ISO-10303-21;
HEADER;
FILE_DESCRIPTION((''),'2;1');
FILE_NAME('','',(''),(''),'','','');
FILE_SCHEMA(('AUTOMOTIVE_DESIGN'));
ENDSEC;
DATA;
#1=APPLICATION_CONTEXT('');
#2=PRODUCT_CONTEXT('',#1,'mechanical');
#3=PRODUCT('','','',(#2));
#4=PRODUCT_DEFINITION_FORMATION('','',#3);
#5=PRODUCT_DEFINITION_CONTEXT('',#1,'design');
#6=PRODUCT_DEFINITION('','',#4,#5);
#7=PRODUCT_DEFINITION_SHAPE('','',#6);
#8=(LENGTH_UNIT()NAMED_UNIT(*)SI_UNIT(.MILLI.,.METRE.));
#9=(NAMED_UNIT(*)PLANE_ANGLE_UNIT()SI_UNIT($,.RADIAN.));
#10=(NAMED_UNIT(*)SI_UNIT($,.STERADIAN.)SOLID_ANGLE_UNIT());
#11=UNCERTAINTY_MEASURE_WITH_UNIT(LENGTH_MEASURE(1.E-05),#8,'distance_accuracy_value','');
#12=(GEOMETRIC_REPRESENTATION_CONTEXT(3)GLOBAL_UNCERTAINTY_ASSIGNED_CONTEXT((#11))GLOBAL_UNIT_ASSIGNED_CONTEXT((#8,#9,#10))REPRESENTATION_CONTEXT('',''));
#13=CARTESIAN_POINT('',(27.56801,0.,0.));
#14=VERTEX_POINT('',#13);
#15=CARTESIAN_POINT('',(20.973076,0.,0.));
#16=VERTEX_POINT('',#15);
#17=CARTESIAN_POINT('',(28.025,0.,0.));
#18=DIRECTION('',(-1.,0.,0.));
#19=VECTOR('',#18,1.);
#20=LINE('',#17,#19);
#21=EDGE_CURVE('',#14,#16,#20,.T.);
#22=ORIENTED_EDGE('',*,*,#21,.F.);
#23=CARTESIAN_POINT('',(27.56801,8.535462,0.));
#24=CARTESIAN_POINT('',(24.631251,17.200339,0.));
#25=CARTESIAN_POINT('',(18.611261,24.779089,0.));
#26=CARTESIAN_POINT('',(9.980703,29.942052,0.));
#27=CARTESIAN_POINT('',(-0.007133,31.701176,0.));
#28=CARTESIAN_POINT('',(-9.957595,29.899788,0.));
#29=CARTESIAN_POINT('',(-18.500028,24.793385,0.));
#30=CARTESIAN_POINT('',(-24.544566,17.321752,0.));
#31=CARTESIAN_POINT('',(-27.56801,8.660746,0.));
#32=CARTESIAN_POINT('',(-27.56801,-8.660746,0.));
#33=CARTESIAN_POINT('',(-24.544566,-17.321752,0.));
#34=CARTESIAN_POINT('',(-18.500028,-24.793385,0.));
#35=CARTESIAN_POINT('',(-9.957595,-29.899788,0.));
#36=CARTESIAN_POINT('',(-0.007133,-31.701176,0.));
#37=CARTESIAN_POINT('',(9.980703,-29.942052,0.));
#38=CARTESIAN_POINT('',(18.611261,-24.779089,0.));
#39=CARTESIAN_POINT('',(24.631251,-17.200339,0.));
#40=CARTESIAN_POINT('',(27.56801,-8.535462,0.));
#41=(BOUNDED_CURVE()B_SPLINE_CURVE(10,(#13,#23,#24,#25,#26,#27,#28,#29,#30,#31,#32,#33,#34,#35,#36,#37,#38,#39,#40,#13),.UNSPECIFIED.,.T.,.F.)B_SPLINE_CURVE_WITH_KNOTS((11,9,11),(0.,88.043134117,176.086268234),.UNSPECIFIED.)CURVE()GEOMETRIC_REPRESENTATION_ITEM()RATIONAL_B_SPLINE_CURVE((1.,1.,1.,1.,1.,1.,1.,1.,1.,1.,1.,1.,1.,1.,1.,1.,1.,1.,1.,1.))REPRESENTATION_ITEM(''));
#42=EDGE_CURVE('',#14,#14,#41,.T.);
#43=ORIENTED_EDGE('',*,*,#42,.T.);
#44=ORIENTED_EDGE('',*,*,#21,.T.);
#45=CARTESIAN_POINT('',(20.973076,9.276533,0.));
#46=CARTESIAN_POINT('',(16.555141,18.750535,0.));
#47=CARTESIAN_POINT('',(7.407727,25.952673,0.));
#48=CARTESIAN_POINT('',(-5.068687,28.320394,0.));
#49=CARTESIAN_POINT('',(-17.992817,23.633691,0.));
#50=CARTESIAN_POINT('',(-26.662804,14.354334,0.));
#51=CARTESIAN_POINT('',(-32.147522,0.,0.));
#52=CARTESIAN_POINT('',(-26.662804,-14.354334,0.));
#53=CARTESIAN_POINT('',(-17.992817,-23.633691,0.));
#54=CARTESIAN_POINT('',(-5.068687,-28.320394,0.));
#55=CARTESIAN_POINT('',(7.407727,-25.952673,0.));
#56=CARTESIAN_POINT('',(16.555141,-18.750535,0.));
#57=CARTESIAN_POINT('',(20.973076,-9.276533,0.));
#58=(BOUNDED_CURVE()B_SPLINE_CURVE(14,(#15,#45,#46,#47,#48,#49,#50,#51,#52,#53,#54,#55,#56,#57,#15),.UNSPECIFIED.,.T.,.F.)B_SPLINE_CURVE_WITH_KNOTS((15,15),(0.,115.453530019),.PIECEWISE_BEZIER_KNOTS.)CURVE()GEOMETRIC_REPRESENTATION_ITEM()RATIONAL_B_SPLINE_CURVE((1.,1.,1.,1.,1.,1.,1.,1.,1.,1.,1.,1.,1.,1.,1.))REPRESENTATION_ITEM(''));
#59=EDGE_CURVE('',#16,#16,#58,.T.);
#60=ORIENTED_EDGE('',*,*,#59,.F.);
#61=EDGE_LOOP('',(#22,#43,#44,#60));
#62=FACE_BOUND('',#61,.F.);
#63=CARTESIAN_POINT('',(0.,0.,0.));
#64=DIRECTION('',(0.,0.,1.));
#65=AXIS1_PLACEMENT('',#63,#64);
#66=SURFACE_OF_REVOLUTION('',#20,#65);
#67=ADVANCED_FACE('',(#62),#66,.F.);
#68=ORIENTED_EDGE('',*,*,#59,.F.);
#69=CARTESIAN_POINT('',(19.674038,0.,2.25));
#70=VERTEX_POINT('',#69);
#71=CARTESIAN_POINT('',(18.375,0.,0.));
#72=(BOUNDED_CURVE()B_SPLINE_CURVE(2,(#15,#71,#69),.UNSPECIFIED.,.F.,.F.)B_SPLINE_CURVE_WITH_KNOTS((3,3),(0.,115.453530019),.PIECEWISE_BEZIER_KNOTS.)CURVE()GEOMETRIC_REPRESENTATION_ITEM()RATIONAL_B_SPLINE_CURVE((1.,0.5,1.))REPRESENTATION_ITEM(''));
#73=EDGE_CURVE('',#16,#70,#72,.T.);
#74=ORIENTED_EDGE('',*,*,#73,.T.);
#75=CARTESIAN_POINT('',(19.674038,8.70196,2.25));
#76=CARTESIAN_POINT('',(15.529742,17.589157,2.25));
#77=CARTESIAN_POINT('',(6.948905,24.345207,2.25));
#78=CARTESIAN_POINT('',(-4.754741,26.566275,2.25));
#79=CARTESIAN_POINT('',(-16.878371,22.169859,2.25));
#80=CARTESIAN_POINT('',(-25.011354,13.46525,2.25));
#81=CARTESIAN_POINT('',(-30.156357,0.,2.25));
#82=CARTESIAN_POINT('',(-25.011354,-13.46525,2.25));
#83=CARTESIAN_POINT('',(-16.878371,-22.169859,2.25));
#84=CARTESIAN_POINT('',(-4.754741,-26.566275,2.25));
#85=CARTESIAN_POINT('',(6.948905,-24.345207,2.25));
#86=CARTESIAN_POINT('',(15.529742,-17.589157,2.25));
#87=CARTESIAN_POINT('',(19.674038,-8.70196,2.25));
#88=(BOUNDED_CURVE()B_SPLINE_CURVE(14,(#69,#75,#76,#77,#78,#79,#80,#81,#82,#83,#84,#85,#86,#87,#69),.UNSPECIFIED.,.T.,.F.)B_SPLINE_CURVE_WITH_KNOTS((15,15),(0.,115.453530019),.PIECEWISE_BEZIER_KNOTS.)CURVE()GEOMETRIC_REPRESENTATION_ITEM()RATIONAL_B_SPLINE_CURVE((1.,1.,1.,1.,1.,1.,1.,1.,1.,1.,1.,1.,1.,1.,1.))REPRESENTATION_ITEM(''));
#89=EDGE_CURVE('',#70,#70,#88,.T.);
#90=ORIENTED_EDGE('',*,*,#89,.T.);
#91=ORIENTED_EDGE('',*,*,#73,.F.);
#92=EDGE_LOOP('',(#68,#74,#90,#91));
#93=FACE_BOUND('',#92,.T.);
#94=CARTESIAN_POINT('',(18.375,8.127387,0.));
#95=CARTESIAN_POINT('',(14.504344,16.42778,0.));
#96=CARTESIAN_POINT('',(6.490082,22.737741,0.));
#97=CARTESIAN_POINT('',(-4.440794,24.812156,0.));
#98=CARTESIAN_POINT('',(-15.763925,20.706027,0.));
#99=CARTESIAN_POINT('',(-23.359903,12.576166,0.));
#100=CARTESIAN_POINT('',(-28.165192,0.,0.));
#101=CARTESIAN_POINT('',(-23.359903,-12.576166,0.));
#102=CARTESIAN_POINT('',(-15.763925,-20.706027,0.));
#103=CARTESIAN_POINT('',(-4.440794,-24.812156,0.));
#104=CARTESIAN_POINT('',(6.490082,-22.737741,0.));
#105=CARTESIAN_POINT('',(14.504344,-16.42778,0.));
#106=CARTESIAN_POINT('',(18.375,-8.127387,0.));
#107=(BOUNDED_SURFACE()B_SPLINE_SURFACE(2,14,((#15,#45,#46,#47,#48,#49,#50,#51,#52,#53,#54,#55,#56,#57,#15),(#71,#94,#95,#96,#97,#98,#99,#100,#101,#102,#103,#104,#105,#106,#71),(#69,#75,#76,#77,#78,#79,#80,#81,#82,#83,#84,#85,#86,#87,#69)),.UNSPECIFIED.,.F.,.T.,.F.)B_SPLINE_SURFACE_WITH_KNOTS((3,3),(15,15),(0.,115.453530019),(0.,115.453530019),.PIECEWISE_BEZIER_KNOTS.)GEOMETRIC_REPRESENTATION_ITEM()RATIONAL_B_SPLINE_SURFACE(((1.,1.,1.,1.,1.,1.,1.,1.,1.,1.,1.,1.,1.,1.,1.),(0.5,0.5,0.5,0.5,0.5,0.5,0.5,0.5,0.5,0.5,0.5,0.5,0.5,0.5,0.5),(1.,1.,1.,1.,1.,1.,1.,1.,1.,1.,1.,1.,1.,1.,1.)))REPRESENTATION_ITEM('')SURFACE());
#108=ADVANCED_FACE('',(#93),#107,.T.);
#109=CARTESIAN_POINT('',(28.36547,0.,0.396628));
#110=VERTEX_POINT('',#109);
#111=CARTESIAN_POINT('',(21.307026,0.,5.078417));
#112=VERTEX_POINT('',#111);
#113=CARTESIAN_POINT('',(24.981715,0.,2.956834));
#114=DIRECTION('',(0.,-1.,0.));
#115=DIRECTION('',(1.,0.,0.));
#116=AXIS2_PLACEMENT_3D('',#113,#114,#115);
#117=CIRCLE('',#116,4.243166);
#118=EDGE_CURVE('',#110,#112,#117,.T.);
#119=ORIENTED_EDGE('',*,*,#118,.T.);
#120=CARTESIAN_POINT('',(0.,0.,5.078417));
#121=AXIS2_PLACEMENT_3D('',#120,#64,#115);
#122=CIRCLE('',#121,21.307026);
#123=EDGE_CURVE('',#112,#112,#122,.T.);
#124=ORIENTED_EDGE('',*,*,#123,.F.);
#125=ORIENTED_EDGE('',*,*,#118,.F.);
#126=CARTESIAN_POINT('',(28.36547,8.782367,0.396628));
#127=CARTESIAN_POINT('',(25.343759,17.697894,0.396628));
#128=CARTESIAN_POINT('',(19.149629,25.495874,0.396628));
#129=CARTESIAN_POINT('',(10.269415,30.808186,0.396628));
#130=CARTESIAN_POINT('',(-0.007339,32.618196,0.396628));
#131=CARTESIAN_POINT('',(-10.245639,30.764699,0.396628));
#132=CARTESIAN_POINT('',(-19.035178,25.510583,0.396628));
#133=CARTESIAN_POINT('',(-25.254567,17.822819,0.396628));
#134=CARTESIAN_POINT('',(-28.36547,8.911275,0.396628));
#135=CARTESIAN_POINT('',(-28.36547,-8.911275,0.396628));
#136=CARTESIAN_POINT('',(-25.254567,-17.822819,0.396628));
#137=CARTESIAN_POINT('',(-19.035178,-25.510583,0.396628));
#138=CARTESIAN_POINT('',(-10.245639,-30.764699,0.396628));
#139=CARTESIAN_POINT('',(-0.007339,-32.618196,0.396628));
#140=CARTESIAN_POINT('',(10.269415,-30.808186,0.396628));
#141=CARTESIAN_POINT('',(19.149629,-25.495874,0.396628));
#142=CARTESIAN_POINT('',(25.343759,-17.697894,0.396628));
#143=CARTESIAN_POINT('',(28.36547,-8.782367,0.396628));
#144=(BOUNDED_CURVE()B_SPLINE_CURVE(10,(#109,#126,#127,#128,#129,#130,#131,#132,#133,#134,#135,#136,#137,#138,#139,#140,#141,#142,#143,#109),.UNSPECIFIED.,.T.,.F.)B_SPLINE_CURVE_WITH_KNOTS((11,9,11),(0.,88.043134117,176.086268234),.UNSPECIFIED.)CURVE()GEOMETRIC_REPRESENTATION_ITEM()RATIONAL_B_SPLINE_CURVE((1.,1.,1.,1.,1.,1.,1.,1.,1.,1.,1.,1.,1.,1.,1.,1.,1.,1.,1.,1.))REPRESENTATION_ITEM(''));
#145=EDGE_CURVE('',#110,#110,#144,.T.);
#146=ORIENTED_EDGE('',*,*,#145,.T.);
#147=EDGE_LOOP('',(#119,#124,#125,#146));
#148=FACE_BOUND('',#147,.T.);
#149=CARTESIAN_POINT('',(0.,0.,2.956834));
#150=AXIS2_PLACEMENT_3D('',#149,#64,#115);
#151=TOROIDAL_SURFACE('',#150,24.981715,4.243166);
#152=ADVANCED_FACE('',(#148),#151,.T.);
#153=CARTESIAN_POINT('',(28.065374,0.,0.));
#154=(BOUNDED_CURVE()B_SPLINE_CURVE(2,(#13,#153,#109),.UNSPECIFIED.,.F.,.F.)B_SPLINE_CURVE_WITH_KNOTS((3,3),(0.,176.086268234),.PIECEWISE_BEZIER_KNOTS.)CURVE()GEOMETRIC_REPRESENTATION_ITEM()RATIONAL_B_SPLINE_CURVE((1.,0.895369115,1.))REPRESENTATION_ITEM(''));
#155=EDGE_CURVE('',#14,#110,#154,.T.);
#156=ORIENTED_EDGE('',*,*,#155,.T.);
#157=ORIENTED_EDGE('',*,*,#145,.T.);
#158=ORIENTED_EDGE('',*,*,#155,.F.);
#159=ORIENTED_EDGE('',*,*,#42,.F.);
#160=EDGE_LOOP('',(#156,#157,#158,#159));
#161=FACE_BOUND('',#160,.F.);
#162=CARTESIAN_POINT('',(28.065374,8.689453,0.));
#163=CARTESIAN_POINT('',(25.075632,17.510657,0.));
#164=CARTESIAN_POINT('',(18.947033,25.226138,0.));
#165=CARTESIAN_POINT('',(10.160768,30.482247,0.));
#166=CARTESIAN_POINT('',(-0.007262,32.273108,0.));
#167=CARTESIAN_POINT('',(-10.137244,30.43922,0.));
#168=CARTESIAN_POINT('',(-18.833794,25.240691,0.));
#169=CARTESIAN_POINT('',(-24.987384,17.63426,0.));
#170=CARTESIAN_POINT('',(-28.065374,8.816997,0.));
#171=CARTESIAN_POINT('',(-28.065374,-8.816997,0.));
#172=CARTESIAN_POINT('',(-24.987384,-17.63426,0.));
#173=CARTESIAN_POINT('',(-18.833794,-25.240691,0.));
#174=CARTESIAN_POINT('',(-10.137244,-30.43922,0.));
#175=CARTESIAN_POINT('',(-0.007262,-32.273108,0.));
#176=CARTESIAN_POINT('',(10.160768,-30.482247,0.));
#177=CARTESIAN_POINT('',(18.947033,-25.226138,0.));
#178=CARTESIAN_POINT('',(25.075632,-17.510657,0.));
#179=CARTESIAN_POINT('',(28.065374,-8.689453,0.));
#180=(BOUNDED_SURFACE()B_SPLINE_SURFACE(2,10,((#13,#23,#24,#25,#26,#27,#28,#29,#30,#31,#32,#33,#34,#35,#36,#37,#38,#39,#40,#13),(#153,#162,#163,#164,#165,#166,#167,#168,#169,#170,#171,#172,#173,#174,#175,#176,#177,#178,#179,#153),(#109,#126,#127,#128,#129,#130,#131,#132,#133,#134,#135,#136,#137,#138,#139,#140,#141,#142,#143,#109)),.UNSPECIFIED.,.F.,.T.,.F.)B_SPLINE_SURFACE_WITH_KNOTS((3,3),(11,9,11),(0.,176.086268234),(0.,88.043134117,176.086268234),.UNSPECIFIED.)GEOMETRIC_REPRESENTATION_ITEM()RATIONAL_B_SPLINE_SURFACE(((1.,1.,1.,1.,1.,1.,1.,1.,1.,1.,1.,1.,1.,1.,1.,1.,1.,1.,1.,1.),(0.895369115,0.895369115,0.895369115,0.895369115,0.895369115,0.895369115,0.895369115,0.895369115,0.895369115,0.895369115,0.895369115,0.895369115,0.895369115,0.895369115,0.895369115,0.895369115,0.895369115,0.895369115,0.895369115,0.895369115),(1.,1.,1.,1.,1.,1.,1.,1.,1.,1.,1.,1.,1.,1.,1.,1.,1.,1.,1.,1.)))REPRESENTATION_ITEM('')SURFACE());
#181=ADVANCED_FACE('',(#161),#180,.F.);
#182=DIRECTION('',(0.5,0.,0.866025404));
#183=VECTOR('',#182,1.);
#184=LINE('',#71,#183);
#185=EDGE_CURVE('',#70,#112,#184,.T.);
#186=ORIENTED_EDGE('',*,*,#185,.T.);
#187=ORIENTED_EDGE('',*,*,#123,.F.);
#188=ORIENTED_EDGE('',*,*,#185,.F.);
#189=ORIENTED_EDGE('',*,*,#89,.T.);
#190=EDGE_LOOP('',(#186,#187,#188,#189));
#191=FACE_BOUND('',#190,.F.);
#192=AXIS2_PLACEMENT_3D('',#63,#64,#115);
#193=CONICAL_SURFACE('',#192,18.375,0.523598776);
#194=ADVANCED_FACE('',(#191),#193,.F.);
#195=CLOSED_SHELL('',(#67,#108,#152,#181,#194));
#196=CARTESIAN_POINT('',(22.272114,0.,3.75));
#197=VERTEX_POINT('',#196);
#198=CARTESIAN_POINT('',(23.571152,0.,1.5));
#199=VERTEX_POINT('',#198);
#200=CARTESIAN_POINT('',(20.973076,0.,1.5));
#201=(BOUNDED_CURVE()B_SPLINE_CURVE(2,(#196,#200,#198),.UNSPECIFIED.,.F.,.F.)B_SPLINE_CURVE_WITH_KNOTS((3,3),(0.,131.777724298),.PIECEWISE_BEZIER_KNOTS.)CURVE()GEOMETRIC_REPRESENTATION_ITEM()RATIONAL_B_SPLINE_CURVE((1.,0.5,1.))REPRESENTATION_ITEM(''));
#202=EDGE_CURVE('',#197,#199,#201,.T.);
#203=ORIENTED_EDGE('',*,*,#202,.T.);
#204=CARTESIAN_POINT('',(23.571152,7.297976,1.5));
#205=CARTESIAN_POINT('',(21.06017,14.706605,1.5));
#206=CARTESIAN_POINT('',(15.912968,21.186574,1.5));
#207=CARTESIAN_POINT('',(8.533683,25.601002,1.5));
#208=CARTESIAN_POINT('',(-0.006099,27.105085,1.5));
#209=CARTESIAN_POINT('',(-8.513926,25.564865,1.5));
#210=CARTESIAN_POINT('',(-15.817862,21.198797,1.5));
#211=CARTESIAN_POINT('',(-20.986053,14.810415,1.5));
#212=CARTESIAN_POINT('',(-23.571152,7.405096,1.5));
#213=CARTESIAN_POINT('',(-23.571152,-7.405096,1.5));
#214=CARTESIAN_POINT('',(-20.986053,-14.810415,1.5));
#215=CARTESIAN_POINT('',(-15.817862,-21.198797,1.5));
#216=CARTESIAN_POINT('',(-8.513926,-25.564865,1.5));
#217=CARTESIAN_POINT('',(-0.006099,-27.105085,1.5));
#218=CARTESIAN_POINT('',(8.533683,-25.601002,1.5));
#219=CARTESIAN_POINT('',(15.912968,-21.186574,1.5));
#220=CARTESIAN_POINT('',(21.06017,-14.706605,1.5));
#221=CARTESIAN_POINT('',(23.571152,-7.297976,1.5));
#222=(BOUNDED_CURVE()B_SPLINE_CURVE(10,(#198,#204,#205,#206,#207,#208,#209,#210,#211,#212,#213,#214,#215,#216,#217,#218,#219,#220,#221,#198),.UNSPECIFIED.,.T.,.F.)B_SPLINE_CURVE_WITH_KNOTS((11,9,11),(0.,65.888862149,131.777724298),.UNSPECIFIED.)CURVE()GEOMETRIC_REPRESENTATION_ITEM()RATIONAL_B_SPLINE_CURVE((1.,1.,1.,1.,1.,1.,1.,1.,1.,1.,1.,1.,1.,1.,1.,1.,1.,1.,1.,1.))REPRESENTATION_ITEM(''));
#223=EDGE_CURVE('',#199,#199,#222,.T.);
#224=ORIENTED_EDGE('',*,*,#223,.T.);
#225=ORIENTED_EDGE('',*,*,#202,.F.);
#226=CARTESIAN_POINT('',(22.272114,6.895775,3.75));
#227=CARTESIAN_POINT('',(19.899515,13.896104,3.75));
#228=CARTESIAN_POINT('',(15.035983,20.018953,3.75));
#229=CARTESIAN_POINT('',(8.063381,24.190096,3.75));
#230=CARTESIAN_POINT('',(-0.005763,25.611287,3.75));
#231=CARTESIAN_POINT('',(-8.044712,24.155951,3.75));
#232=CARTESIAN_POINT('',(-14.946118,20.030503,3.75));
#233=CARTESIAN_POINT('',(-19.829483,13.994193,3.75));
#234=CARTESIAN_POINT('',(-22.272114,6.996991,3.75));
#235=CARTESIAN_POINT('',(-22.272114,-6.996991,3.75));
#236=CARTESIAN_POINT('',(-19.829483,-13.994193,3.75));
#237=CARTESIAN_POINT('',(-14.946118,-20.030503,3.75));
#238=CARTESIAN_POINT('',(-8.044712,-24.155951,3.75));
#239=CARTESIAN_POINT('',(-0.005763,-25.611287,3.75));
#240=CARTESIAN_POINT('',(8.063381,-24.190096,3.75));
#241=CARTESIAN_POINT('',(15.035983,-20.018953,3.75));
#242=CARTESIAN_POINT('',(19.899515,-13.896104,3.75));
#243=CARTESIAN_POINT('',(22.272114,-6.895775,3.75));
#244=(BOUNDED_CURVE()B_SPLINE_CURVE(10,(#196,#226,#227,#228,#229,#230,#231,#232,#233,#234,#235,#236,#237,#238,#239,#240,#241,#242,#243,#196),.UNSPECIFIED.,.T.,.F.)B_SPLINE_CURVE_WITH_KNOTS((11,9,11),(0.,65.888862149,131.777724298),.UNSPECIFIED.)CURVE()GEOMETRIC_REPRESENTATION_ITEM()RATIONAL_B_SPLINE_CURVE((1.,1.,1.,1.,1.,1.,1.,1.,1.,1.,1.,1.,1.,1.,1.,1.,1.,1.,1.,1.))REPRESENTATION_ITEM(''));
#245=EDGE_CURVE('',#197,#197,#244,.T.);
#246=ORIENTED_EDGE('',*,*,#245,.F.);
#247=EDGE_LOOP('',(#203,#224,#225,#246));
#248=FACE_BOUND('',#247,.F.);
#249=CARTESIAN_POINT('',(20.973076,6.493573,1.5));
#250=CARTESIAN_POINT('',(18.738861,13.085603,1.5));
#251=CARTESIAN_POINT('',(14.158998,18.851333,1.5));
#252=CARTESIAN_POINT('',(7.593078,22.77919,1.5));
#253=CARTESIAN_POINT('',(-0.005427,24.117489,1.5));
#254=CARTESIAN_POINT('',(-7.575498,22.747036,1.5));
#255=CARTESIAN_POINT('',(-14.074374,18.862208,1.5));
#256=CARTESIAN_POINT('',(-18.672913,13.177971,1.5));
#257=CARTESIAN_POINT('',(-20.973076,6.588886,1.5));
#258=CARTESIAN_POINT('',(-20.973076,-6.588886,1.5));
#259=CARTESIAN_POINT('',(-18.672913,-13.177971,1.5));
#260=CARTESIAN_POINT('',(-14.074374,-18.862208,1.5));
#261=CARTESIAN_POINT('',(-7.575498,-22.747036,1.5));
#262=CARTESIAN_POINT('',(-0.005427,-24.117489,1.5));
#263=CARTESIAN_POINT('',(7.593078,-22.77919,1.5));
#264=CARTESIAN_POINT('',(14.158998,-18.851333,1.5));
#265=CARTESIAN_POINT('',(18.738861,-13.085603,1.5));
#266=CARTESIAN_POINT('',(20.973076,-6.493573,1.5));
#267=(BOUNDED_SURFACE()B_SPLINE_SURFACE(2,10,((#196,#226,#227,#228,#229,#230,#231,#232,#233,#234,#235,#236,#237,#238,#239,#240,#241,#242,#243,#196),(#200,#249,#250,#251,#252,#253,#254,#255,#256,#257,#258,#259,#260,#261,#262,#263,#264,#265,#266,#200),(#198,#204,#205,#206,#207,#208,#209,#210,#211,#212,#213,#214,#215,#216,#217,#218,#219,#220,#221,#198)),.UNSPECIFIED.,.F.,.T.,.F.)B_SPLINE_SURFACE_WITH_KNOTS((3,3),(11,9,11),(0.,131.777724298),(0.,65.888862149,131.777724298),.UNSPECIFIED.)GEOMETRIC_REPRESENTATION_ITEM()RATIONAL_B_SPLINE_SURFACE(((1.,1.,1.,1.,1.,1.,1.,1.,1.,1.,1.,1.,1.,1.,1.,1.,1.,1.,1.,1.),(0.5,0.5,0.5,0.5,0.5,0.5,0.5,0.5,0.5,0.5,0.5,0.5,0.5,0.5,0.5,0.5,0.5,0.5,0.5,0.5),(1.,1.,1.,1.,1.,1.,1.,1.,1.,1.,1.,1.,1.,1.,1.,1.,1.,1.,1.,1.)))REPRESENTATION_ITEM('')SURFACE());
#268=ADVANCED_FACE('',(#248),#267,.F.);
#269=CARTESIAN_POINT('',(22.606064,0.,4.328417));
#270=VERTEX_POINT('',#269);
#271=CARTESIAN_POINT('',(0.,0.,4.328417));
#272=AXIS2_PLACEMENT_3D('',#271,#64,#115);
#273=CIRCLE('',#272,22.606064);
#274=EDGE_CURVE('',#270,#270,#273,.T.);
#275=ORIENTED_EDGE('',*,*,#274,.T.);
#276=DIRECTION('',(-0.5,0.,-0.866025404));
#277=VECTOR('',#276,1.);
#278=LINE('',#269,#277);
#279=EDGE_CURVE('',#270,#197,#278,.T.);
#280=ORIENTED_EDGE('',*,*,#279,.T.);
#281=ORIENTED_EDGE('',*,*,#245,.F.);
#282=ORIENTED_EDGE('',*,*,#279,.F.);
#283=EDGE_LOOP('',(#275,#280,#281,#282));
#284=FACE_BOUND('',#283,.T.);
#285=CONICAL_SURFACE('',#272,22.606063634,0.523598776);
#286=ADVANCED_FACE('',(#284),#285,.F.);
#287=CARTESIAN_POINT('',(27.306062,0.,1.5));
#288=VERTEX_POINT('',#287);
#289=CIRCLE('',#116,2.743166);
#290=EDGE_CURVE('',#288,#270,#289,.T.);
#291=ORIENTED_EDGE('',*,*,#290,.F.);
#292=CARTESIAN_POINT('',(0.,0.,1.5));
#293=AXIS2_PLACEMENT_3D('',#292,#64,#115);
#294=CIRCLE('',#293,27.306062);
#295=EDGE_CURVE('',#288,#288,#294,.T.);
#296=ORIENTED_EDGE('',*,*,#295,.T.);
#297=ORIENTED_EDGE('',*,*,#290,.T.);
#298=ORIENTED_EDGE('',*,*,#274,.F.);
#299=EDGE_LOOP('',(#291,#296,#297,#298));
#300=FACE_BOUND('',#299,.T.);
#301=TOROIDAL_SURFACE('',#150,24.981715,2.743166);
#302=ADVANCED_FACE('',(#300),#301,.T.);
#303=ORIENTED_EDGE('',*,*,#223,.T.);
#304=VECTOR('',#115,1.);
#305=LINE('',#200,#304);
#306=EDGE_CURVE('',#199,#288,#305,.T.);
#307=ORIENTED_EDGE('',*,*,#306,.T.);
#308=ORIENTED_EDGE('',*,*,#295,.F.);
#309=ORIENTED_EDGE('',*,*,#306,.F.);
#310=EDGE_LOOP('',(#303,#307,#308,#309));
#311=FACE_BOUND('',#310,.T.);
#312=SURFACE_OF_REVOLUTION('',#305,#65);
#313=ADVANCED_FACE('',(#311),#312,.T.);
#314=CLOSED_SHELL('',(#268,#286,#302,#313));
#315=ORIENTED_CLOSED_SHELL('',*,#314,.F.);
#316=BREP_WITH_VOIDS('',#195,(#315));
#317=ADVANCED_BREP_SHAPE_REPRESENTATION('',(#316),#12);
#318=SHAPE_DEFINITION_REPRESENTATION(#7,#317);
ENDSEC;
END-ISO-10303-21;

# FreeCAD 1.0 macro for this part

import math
import FreeCAD as App
import Part
import Sketcher

V = App.Vector
Q = App.Units.Quantity


def edges_at(feature, points):
    """Names of the edges that pass closest to the given points."""
    edges = feature.Shape.Edges
    near = lambda p: min(range(len(edges)), key=lambda i: edges[i].distToShape(Part.Vertex(*p))[0])
    return sorted({f"Edge{near(p) + 1}" for p in points})

doc = App.newDocument("Part")
body = doc.addObject("PartDesign::Body", "Body")

# Sketch on YZ plane
sketch1 = body.newObject("Sketcher::SketchObject", "Sketch")
sketch1.AttachmentSupport = (doc.getObject("YZ_Plane"), [""])
sketch1.MapMode = "FlatFace"
sketch1.addGeometry([
    Part.LineSegment(V(-18.4, 0, 0), V(-21.3, 5.1, 0)),  # 0
    Part.ArcOfCircle(Part.Circle(V(-25, 3, 0), V(0, 0, 1), 4.2), math.radians(30), math.radians(224)),  # 1
    Part.LineSegment(V(-28, 0, 0), V(-18.4, 0, 0)),  # 2
    Part.LineSegment(V(-22.6, 4.3, 0), V(-21, 1.5, 0)),  # 3
    Part.LineSegment(V(-21, 1.5, 0), V(-27.3, 1.5, 0)),  # 4
    Part.ArcOfCircle(Part.Circle(V(-25, 3, 0), V(0, 0, 1), 2.7), math.radians(30), math.radians(212)),  # 5
], False)
sketch1.addConstraint([
    Sketcher.Constraint("Tangent", 0, 2, 1, 1),
    Sketcher.Constraint("Coincident", 1, 2, 2, 1),
    Sketcher.Constraint("Coincident", 2, 2, 0, 1),
    Sketcher.Constraint("Coincident", 3, 2, 4, 1),
    Sketcher.Constraint("Coincident", 4, 2, 5, 2),
    Sketcher.Constraint("Tangent", 5, 1, 3, 1),
    Sketcher.Constraint("Horizontal", 2),
    Sketcher.Constraint("Horizontal", 4),
    Sketcher.Constraint("Coincident", 5, 3, 1, 3),
    Sketcher.Constraint("PointOnObject", 1, 2, -1),
    Sketcher.Constraint("Parallel", 0, 3),
    Sketcher.Constraint("Angle", 0, Q("120 deg")),
    Sketcher.Constraint("DistanceX", 2, 1, 2, 2, 9.65),
    Sketcher.Constraint("DistanceY", -1, 1, 3, 2, 1.5),
    Sketcher.Constraint("DistanceX", 4, 2, 5, 1, 4.699999),
    Sketcher.Constraint("DistanceY", 5, 1, 0, 2, 0.75),
    Sketcher.Constraint("DistanceX", 1, 2, -1, 1, 28.025),
])

# Sketch on XY plane
sketch2 = body.newObject("Sketcher::SketchObject", "Sketch001")
sketch2.AttachmentSupport = (doc.getObject("XY_Plane"), [""])
sketch2.MapMode = "FlatFace"
sketch2.addGeometry(Part.Circle(V(0, 0, 0), V(0, 0, 1), 18), False)
sketch2.addConstraint([
    Sketcher.Constraint("Coincident", 0, 3, -1, 1),
    Sketcher.Constraint("Diameter", 0, 36.75),
])
doc.recompute()

additivepipe = body.newObject("PartDesign::AdditivePipe", "AdditivePipe")
additivepipe.Profile = sketch1
additivepipe.Spine = (sketch2, ["Edge1"])
doc.recompute()

fillet = body.newObject("PartDesign::Fillet", "Fillet")
fillet.Base = (additivepipe, edges_at(additivepipe, [(-20.973, 0, 1.5)]))
fillet.Radius = 1.5
doc.recompute()

fillet2 = body.newObject("PartDesign::Fillet", "Fillet001")
fillet2.Base = (fillet, edges_at(fillet, [(-28.025, 0, 0)]))
fillet2.Radius = 1
doc.recompute()

fillet3 = body.newObject("PartDesign::Fillet", "Fillet002")
fillet3.Base = (fillet2, edges_at(fillet2, [(-18.375, 0, 0)]))
fillet3.Radius = 1.5

doc.recompute()
